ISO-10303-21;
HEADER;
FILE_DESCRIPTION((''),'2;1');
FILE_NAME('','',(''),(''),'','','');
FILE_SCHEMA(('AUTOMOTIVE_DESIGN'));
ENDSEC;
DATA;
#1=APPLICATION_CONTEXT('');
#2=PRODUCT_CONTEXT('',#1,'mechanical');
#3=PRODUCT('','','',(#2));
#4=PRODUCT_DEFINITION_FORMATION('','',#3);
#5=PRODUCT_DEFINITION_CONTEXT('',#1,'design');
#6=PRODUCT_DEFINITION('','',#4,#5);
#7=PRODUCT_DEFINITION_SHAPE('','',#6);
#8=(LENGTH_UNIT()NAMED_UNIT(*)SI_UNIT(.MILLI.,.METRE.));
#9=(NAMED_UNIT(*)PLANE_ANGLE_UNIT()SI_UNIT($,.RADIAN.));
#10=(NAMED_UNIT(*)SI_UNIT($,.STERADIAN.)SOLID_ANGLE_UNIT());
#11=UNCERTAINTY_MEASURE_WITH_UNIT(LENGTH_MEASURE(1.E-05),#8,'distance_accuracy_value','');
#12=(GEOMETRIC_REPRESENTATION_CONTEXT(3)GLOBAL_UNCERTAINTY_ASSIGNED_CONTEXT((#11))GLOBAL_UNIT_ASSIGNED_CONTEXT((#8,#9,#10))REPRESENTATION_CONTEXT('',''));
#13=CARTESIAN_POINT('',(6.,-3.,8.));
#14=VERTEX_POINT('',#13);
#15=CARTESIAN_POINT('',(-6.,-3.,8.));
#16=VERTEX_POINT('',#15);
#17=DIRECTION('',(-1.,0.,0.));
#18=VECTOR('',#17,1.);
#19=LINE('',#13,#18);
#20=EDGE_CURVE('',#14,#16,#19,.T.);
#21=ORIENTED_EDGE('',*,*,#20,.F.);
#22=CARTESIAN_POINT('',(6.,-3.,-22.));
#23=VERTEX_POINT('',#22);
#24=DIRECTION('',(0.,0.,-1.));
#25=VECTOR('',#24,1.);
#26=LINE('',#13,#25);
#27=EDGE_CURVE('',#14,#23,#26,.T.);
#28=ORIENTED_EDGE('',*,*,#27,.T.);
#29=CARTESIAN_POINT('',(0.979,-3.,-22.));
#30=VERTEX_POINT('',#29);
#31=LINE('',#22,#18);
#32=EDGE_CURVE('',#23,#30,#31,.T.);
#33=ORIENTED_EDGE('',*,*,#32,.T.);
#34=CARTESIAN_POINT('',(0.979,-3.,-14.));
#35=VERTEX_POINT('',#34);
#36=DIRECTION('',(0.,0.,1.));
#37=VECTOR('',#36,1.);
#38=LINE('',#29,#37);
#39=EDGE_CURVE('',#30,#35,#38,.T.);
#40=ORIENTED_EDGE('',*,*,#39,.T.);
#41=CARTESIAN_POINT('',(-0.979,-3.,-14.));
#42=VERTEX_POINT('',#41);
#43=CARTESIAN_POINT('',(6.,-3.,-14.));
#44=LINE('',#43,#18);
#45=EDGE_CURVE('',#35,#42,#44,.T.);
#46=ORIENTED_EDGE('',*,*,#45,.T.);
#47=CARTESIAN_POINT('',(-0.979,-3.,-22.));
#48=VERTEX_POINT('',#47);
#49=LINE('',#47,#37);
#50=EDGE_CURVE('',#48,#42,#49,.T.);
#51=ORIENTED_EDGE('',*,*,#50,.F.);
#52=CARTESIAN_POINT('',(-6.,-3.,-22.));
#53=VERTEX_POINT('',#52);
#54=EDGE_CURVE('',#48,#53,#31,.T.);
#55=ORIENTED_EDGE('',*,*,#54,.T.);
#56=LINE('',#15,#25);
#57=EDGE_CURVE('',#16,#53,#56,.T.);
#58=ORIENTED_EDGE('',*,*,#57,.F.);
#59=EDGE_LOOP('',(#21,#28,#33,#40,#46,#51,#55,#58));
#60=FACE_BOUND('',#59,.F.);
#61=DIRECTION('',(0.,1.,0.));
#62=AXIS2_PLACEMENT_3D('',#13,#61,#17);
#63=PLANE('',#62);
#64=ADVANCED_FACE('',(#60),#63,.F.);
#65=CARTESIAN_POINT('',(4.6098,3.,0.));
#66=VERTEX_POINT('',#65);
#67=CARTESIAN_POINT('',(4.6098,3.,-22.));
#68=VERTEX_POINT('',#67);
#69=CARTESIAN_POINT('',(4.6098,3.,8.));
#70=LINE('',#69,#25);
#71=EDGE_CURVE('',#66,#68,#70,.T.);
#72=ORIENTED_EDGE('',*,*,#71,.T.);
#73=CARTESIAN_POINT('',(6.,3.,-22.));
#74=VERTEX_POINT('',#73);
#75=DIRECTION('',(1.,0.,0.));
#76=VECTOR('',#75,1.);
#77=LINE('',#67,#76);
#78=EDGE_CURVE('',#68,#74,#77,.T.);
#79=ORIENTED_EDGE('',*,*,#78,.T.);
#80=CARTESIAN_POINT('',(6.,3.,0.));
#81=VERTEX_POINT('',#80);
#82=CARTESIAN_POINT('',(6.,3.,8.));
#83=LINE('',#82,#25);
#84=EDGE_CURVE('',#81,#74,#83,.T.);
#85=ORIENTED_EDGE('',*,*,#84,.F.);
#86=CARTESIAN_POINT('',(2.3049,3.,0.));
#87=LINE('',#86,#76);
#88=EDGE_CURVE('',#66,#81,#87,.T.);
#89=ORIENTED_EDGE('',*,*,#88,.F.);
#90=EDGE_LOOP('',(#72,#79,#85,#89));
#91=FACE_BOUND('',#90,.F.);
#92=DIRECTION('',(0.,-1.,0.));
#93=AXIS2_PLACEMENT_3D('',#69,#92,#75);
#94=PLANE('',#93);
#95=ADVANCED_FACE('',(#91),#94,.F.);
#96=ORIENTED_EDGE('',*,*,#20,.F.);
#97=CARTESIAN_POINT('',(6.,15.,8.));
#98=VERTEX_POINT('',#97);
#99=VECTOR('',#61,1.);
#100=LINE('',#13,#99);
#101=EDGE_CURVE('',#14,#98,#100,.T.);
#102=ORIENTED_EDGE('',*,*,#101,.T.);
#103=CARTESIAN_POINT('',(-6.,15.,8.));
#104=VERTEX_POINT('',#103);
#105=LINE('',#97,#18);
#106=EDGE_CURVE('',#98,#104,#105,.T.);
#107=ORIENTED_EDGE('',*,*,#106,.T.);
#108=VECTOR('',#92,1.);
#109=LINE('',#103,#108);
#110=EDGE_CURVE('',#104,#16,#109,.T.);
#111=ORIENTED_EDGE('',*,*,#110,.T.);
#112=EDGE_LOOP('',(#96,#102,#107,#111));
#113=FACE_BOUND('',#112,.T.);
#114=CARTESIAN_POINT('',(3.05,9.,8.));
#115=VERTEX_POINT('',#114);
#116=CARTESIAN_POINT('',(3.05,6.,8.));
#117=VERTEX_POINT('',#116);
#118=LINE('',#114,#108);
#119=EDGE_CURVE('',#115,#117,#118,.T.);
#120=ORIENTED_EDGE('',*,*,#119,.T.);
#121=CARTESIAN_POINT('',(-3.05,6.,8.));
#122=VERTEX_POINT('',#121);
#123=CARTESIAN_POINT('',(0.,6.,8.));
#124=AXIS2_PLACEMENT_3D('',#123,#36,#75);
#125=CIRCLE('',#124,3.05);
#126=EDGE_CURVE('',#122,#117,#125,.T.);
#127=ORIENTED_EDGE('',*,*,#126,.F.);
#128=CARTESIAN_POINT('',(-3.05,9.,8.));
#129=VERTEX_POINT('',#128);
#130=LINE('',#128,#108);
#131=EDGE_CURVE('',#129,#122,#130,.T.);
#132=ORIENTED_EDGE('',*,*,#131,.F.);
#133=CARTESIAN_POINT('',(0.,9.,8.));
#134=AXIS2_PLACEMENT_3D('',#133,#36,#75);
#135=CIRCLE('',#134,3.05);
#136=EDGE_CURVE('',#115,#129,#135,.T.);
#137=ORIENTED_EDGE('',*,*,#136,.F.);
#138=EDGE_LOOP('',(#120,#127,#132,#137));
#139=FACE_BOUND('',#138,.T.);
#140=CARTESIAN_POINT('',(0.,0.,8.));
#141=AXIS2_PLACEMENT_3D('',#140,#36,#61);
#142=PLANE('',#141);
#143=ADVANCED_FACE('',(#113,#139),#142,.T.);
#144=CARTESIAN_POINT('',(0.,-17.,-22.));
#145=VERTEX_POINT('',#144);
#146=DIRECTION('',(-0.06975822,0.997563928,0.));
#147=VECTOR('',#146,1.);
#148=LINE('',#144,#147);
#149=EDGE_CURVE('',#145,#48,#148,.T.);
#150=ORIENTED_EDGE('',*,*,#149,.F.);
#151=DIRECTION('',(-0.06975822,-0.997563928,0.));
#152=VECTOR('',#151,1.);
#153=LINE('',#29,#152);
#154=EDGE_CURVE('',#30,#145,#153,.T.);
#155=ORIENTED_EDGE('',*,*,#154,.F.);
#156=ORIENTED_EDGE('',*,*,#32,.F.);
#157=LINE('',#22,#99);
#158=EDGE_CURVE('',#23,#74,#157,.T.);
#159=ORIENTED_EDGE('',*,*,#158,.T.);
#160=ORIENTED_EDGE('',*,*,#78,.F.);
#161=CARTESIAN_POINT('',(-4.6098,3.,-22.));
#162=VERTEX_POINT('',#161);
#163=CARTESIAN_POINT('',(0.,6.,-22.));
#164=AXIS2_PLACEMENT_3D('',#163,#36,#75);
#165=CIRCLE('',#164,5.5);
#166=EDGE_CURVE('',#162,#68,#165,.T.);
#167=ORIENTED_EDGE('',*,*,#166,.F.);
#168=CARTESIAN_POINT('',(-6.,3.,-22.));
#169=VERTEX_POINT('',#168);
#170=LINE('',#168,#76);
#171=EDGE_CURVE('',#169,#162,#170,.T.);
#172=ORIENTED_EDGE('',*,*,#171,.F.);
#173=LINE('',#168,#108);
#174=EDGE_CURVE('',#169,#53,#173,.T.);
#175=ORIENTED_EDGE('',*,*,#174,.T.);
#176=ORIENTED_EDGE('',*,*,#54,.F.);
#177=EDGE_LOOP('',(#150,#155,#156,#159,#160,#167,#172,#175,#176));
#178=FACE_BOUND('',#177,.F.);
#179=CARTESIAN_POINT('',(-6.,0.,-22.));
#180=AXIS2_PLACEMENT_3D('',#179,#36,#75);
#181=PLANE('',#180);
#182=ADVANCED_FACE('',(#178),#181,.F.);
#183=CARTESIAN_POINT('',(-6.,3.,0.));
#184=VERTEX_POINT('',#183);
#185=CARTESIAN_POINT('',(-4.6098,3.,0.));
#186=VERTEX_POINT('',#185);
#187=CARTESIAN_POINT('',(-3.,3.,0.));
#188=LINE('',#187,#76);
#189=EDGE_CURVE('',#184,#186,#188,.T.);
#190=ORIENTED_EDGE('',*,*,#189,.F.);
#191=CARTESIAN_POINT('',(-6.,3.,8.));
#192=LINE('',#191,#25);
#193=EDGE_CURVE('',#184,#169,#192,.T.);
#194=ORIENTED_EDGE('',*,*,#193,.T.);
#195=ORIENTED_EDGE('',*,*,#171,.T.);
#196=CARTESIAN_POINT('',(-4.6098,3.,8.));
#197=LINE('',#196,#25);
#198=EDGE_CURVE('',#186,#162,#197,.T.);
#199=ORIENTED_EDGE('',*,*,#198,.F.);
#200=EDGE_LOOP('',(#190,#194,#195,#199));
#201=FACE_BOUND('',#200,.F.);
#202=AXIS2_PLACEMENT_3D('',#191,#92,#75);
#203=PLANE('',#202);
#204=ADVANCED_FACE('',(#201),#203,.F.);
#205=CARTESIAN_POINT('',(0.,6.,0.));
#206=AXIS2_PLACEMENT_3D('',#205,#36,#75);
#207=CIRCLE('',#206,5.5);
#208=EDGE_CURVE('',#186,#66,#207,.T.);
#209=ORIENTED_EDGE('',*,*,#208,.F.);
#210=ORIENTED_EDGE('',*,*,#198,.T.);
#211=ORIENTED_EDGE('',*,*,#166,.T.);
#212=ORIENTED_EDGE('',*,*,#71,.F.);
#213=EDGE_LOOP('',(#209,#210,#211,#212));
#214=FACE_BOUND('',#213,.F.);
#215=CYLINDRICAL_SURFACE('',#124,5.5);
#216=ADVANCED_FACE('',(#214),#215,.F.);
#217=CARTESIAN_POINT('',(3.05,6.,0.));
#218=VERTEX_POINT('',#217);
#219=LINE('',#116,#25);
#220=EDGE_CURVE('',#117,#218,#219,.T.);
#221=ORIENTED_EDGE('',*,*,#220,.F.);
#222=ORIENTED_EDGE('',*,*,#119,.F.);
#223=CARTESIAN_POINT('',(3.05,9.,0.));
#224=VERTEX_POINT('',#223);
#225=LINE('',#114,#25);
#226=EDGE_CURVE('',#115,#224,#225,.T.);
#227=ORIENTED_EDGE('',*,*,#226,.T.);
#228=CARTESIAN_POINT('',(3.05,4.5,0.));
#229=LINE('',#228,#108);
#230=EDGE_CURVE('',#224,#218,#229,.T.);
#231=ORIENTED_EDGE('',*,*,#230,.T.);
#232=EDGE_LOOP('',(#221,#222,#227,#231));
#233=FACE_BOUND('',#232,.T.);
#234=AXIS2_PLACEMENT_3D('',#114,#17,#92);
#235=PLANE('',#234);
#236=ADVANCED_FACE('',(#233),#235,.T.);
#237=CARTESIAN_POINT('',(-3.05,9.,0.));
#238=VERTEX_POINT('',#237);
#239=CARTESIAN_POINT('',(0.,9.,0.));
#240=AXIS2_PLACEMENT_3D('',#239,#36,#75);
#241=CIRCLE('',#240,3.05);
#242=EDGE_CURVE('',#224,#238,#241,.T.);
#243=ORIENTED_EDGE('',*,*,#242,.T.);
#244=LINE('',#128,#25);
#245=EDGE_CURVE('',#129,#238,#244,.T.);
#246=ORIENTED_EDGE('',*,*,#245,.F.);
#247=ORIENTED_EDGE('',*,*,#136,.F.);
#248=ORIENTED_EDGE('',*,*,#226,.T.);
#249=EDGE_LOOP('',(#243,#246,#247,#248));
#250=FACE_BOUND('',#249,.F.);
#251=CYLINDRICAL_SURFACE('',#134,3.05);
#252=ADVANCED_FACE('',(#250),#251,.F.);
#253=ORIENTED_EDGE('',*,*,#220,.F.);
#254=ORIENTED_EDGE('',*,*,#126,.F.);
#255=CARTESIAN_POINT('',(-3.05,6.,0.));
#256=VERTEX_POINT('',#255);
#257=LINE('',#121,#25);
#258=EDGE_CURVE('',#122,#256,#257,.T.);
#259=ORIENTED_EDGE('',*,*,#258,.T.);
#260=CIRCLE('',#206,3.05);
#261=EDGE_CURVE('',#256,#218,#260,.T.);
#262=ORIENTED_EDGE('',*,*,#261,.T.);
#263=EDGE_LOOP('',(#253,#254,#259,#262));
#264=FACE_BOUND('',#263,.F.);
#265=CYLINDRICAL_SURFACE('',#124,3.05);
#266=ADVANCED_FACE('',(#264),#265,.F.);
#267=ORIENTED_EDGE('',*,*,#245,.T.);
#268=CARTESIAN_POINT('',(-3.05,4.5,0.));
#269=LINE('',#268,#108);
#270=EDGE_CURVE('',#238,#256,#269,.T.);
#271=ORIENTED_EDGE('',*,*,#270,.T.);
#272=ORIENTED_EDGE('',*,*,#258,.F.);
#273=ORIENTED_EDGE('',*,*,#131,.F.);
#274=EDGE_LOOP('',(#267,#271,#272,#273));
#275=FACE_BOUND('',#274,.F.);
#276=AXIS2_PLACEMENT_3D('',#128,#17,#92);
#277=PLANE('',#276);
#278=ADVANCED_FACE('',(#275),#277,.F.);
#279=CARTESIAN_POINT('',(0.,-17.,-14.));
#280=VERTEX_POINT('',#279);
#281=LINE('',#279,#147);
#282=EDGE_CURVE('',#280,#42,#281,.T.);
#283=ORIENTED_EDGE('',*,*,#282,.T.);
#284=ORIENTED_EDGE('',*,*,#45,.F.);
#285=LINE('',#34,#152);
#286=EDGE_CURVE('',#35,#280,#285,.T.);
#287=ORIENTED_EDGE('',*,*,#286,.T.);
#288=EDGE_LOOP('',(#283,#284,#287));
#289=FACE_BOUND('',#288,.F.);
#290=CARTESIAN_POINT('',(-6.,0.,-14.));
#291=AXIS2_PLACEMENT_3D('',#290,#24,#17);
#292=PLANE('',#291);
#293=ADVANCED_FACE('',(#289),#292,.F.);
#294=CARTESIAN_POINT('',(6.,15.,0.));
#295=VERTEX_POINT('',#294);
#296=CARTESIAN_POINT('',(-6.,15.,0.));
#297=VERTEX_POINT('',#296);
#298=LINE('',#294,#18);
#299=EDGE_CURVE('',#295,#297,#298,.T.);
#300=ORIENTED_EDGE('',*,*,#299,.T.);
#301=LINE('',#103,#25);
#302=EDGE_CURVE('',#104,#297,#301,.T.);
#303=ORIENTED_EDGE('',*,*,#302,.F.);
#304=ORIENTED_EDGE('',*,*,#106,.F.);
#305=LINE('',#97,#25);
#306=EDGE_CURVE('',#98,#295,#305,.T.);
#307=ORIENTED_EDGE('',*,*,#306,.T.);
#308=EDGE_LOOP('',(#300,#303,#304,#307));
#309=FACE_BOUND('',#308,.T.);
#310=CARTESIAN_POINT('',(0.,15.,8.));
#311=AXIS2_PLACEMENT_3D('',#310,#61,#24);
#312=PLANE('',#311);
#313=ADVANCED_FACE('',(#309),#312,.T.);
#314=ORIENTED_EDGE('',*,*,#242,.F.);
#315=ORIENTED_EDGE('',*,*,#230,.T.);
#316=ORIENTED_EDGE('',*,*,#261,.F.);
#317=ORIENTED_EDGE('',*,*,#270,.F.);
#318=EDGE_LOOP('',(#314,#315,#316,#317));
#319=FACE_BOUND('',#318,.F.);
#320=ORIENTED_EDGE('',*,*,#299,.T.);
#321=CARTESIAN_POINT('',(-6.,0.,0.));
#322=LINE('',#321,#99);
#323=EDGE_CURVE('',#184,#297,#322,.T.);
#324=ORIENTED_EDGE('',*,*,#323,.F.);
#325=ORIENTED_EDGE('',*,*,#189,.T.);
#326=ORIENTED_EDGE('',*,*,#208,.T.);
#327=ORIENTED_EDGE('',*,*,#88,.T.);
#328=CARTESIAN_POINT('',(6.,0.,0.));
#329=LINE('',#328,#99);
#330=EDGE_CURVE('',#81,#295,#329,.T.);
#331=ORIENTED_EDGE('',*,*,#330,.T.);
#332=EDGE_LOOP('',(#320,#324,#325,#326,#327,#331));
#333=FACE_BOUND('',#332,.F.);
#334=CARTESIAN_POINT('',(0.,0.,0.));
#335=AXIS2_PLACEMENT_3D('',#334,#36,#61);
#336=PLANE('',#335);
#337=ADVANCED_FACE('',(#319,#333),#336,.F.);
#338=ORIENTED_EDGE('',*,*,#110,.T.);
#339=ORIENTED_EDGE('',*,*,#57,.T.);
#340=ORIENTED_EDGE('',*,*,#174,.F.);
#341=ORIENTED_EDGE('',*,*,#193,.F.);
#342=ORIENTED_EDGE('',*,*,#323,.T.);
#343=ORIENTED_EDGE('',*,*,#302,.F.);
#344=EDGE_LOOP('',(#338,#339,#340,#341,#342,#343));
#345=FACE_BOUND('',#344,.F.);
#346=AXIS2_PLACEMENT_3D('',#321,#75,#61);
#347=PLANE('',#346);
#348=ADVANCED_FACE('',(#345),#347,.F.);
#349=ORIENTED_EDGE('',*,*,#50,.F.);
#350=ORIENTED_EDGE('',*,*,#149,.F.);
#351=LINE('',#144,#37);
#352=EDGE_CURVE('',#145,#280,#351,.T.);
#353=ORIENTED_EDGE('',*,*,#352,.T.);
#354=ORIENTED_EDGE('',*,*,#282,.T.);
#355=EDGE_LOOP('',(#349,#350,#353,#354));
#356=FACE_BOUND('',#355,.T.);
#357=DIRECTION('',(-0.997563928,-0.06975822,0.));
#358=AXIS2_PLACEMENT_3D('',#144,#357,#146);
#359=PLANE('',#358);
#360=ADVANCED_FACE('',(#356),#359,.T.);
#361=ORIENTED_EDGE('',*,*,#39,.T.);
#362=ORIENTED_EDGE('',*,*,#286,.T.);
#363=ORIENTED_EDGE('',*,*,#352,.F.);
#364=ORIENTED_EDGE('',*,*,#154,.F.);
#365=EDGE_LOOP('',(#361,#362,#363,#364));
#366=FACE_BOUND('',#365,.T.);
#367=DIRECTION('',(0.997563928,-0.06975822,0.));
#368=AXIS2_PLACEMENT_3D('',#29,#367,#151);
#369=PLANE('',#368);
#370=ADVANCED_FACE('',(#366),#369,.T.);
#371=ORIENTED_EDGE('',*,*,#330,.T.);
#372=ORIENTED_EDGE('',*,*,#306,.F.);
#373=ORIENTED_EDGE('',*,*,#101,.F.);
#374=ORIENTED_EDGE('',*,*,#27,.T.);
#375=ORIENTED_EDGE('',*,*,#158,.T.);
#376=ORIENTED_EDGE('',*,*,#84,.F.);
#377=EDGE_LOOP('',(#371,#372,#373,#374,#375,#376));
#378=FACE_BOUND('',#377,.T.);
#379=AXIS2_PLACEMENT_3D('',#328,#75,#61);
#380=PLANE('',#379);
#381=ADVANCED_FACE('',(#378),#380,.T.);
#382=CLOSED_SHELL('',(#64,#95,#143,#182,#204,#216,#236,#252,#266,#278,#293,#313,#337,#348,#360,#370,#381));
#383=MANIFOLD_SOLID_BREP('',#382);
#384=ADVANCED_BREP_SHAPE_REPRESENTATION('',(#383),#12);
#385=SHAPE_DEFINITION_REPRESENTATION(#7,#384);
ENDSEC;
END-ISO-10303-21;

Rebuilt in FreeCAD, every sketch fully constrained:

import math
import FreeCAD as App
import Part
import Sketcher
Q = App.Units.Quantity

doc = App.newDocument("Part")
body = doc.addObject("PartDesign::Body", "Body")

# Sketch on YZ plane
sketch1 = body.newObject("Sketcher::SketchObject", "Sketch")
sketch1.AttachmentSupport = (doc.getObject("YZ_Plane"), [""])
sketch1.MapMode = "FlatFace"
sketch1.addGeometry([
    Part.LineSegment(App.Vector(15, 8, 0), App.Vector(0, 8, 0)),
    Part.LineSegment(App.Vector(0, 8, 0), App.Vector(0, 0, 0)),
    Part.LineSegment(App.Vector(0, 0, 0), App.Vector(15, 0, 0)),
    Part.LineSegment(App.Vector(15, 0, 0), App.Vector(15, 8, 0)),
], False)
sketch1.addConstraint([
    Sketcher.Constraint("Coincident", 0, 2, 1, 1),
    Sketcher.Constraint("Coincident", 1, 2, 2, 1),
    Sketcher.Constraint("Coincident", 2, 2, 3, 1),
    Sketcher.Constraint("Coincident", 3, 2, 0, 1),
    Sketcher.Constraint("Horizontal", 0),
    Sketcher.Constraint("Vertical", 1),
    Sketcher.Constraint("Horizontal", 2),
    Sketcher.Constraint("Vertical", 3),
    Sketcher.Constraint("Coincident", 1, 2, -1, 1),
    Sketcher.Constraint("DistanceX", 0, 2, 0, 1, 15.0),
    Sketcher.Constraint("DistanceY", 1, 2, 1, 1, 8.0),
])
pad1 = body.newObject("PartDesign::Pad", "Pad")
pad1.Profile = sketch1
pad1.Length = 12
pad1.Midplane = True

# Sketch on XY plane
sketch2 = body.newObject("Sketcher::SketchObject", "Sketch001")
sketch2.AttachmentSupport = (doc.getObject("XY_Plane"), [""])
sketch2.MapMode = "FlatFace"
sketch2.AttachmentOffset = App.Placement(App.Vector(0, 0, 8), App.Rotation())
sketch2.addGeometry([
    Part.ArcOfCircle(Part.Circle(App.Vector(0, 6, 0), App.Vector(0, 0, 1), 3), math.radians(180), math.radians(360)),
    Part.LineSegment(App.Vector(3, 6, 0), App.Vector(3, 9, 0)),
    Part.ArcOfCircle(Part.Circle(App.Vector(0, 9, 0), App.Vector(0, 0, 1), 3), math.radians(0), math.radians(180)),
    Part.LineSegment(App.Vector(-3, 9, 0), App.Vector(-3, 6, 0)),
], False)
sketch2.addConstraint([
    Sketcher.Constraint("Tangent", 0, 2, 1, 1),
    Sketcher.Constraint("Tangent", 1, 2, 2, 1),
    Sketcher.Constraint("Tangent", 2, 2, 3, 1),
    Sketcher.Constraint("Tangent", 3, 2, 0, 1),
    Sketcher.Constraint("Vertical", 1),
    Sketcher.Constraint("Vertical", 3),
    Sketcher.Constraint("PointOnObject", 0, 3, -2),
    Sketcher.Constraint("DistanceY", 1, 1, 1, 2, 3.0),
    Sketcher.Constraint("Radius", 0, 3.05),
    Sketcher.Constraint("DistanceY", -1, 1, 0, 3, 6.0),
])
pocket1 = body.newObject("PartDesign::Pocket", "Pocket")
pocket1.Profile = sketch2
pocket1.Type = "ThroughAll"

# Sketch on XY plane
sketch3 = body.newObject("Sketcher::SketchObject", "Sketch002")
sketch3.AttachmentSupport = (doc.getObject("XY_Plane"), [""])
sketch3.MapMode = "FlatFace"
sketch3.AttachmentOffset = App.Placement(App.Vector(0, 0, 8), App.Rotation())
sketch3.addGeometry([
    Part.ArcOfCircle(Part.Circle(App.Vector(0, 6, 0), App.Vector(0, 0, 1), 5.5), math.radians(-147), math.radians(-33)),  # 0
    Part.LineSegment(App.Vector(-4.6, 3, 0), App.Vector(-6, 3, 0)),  # 1
    Part.LineSegment(App.Vector(-6, 3, 0), App.Vector(-6, -3, 0)),  # 2
    Part.LineSegment(App.Vector(-6, -3, 0), App.Vector(6, -3, 0)),  # 3
    Part.LineSegment(App.Vector(6, -3, 0), App.Vector(6, 3, 0)),  # 4
    Part.LineSegment(App.Vector(6, 3, 0), App.Vector(4.6, 3, 0)),  # 5
], False)
sketch3.addConstraint([
    Sketcher.Constraint("Coincident", 0, 1, 1, 1),
    Sketcher.Constraint("Coincident", 1, 2, 2, 1),
    Sketcher.Constraint("Coincident", 2, 2, 3, 1),
    Sketcher.Constraint("Coincident", 3, 2, 4, 1),
    Sketcher.Constraint("Coincident", 4, 2, 5, 1),
    Sketcher.Constraint("Coincident", 5, 2, 0, 2),
    Sketcher.Constraint("Horizontal", 1),
    Sketcher.Constraint("Vertical", 2),
    Sketcher.Constraint("Horizontal", 3),
    Sketcher.Constraint("Vertical", 4),
    Sketcher.Constraint("Horizontal", 5),
    Sketcher.Constraint("Symmetric", 1, 2, 3, 2, -1, 1),
    Sketcher.Constraint("Symmetric", 0, 1, 5, 2, -2),
    Sketcher.Constraint("Radius", 0, 5.5),
    Sketcher.Constraint("DistanceY", 2, 2, 2, 1, 6.0),
    Sketcher.Constraint("DistanceY", -1, 1, 0, 3, 6.0),
    Sketcher.Constraint("DistanceX", 1, 2, -1, 1, 6.0),
])
pad2 = body.newObject("PartDesign::Pad", "Pad001")
pad2.Profile = sketch3
pad2.Length = 30
pad2.Reversed = True

# Sketch on XY plane
sketch4 = body.newObject("Sketcher::SketchObject", "Sketch003")
sketch4.AttachmentSupport = (doc.getObject("XY_Plane"), [""])
sketch4.MapMode = "FlatFace"
sketch4.AttachmentOffset = App.Placement(App.Vector(0, 0, -22), App.Rotation())
sketch4.addGeometry([
    Part.LineSegment(App.Vector(-1, -3, 0), App.Vector(1, -3, 0)),
    Part.LineSegment(App.Vector(1, -3, 0), App.Vector(0, -17, 0)),
    Part.LineSegment(App.Vector(0, -17, 0), App.Vector(-1, -3, 0)),
], False)
sketch4.addConstraint([
    Sketcher.Constraint("Coincident", 0, 2, 1, 1),
    Sketcher.Constraint("Coincident", 1, 2, 2, 1),
    Sketcher.Constraint("Coincident", 2, 2, 0, 1),
    Sketcher.Constraint("Horizontal", 0),
    Sketcher.Constraint("PointOnObject", 1, 2, -2),
    Sketcher.Constraint("Equal", 1, 2),
    Sketcher.Constraint("DistanceY", 1, 2, 0, 2, 14.0),
    Sketcher.Constraint("Angle", 1, Q("-94 deg")),
    Sketcher.Constraint("DistanceY", 0, 2, -1, 1, 3.0),
])
pad3 = body.newObject("PartDesign::Pad", "Pad002")
pad3.Profile = sketch4
pad3.Length = 8

doc.recompute()
